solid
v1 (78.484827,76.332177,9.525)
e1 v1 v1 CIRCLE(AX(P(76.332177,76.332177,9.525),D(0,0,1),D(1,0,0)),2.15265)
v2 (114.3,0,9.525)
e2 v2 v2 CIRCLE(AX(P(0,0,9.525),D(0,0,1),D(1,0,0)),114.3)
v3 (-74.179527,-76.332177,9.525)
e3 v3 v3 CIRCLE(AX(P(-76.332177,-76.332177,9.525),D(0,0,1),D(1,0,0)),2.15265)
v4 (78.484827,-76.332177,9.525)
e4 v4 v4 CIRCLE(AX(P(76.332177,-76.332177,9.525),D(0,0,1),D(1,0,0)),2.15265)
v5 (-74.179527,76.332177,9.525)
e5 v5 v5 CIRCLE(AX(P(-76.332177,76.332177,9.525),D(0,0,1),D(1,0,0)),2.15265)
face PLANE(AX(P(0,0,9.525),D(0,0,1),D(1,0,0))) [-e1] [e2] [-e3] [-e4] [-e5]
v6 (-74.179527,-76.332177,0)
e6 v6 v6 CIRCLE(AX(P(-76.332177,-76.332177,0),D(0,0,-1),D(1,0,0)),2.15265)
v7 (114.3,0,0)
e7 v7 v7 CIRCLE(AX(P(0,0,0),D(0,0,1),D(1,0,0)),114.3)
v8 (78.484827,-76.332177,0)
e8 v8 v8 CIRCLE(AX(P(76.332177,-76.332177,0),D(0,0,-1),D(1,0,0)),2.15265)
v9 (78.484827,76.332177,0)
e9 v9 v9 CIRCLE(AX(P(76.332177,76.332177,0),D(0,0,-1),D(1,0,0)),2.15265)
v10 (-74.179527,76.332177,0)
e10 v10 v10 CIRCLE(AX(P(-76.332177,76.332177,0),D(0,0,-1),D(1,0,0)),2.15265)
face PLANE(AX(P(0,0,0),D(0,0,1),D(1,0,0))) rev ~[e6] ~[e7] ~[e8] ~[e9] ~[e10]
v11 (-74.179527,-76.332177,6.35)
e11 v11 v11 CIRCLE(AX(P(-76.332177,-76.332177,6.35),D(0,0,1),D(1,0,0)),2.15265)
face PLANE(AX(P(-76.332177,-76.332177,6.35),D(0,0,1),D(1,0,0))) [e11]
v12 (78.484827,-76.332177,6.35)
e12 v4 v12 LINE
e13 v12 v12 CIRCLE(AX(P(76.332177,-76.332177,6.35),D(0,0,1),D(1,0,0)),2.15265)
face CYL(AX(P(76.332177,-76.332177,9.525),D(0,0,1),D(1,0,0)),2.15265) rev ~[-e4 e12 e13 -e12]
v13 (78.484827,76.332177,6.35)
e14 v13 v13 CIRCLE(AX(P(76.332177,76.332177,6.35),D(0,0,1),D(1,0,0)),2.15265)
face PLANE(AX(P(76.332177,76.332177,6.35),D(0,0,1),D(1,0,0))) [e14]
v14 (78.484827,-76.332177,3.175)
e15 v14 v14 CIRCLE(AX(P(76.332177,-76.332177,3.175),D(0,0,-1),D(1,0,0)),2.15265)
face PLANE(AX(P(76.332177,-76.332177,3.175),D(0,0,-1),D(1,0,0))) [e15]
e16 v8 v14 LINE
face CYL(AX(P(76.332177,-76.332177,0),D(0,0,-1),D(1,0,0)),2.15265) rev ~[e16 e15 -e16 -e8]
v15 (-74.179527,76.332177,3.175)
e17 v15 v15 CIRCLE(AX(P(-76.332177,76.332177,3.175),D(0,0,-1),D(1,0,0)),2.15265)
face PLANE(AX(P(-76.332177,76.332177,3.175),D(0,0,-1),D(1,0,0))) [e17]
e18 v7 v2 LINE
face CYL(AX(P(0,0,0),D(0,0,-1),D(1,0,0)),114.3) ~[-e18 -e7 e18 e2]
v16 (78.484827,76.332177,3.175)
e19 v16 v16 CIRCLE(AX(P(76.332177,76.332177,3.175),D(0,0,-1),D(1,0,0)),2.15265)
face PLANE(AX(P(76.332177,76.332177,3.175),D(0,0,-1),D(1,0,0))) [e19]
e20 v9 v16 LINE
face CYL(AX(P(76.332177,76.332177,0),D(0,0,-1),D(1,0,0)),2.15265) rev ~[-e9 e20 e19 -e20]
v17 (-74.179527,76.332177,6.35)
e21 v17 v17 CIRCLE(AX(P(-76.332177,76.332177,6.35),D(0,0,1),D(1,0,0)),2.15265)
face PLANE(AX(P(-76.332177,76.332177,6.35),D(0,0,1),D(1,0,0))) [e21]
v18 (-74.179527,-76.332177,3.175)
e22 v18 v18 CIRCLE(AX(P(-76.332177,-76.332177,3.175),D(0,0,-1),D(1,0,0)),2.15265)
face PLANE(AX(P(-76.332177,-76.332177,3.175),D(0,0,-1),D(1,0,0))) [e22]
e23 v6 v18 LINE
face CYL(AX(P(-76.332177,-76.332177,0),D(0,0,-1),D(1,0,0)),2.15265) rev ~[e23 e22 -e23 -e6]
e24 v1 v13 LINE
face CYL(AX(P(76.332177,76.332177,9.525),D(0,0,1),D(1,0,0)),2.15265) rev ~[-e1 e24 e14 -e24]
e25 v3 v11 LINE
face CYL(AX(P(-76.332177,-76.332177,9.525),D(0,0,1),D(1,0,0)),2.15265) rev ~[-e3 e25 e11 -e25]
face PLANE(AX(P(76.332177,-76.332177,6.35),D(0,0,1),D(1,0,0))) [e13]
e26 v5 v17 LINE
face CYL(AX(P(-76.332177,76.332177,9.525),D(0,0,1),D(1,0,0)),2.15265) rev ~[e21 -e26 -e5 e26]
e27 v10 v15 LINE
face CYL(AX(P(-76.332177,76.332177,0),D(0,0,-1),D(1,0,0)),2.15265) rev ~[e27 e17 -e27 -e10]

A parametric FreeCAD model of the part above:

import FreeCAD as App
import Part
import Sketcher

V = App.Vector
Q = App.Units.Quantity

doc = App.newDocument("Part")
body = doc.addObject("PartDesign::Body", "Body")

sketch1 = doc.addObject("Sketcher::SketchObject", "Sketch")
body.addObject(sketch1)
sketch1.AttachmentSupport = (doc.XY_Plane, [""])
sketch1.MapMode = "FlatFace"
sketch1.addGeometry(Part.Circle(V(0, 0, 0), V(0, 0, 1), 114), False)
sketch1.addConstraint(Sketcher.Constraint("Coincident", 0, 3, -1, 1))
sketch1.addConstraint(Sketcher.Constraint("Diameter", 0, Q("9 in")))
pad1 = doc.addObject("PartDesign::Pad", "Pad")
body.addObject(pad1)
pad1.Profile = sketch1
pad1.Length = Q("0.375 in")

sketch2 = doc.addObject("Sketcher::SketchObject", "Sketch001")
body.addObject(sketch2)
sketch2.AttachmentSupport = (doc.XY_Plane, [""])
sketch2.MapMode = "FlatFace"
sketch2.AttachmentOffset = App.Placement(V(0, 0, 0.375 * 25.4), App.Rotation())
sketch2.addGeometry(Part.Circle(V(-76.3, 76.3, 0), V(0, 0, 1), 2.2), False)
sketch2.addGeometry(Part.Circle(V(76.3, 76.3, 0), V(0, 0, 1), 2.2), False)
sketch2.addGeometry(Part.Circle(V(76.3, -76.3, 0), V(0, 0, 1), 2.2), False)
sketch2.addGeometry(Part.Circle(V(-76.3, -76.3, 0), V(0, 0, 1), 2.2), False)
sketch2.addConstraint(Sketcher.Constraint("Equal", 0, 1))
sketch2.addConstraint(Sketcher.Constraint("Equal", 1, 2))
sketch2.addConstraint(Sketcher.Constraint("Equal", 2, 3))
sketch2.addConstraint(Sketcher.Constraint("Symmetric", 0, 3, 2, 3, -1, 1))
sketch2.addConstraint(Sketcher.Constraint("Symmetric", 1, 3, 3, 3, -1, 1))
sketch2.addConstraint(Sketcher.Constraint("Symmetric", 0, 3, 1, 3, -2))
sketch2.addConstraint(Sketcher.Constraint("Diameter", 0, Q("0.1695 in")))
sketch2.addConstraint(Sketcher.Constraint("DistanceX", 0, 3, -1, 1, 76.332177))
sketch2.addConstraint(Sketcher.Constraint("DistanceY", -1, 1, 0, 3, 76.332177))
pocket1 = doc.addObject("PartDesign::Pocket", "Pocket")
body.addObject(pocket1)
pocket1.Profile = sketch2
pocket1.Length = Q("0.125 in")

sketch3 = doc.addObject("Sketcher::SketchObject", "Sketch002")
body.addObject(sketch3)
sketch3.AttachmentSupport = (doc.XY_Plane, [""])
sketch3.MapMode = "FlatFace"
sketch3.addGeometry(Part.Circle(V(-76.3, -76.3, 0), V(0, 0, 1), 2.2), False)
sketch3.addGeometry(Part.Circle(V(76.3, -76.3, 0), V(0, 0, 1), 2.2), False)
sketch3.addGeometry(Part.Circle(V(76.3, 76.3, 0), V(0, 0, 1), 2.2), False)
sketch3.addGeometry(Part.Circle(V(-76.3, 76.3, 0), V(0, 0, 1), 2.2), False)
sketch3.addConstraint(Sketcher.Constraint("Equal", 0, 1))
sketch3.addConstraint(Sketcher.Constraint("Equal", 1, 2))
sketch3.addConstraint(Sketcher.Constraint("Equal", 2, 3))
sketch3.addConstraint(Sketcher.Constraint("Symmetric", 0, 3, 2, 3, -1, 1))
sketch3.addConstraint(Sketcher.Constraint("Symmetric", 1, 3, 3, 3, -1, 1))
sketch3.addConstraint(Sketcher.Constraint("Symmetric", 0, 3, 1, 3, -2))
sketch3.addConstraint(Sketcher.Constraint("Diameter", 0, Q("0.1695 in")))
sketch3.addConstraint(Sketcher.Constraint("DistanceX", 0, 3, -1, 1, 76.332177))
sketch3.addConstraint(Sketcher.Constraint("DistanceY", 0, 3, -1, 1, 76.332177))
pocket2 = doc.addObject("PartDesign::Pocket", "Pocket001")
body.addObject(pocket2)
pocket2.Profile = sketch3
pocket2.Length = Q("0.125 in")
pocket2.Reversed = True

doc.recompute()
